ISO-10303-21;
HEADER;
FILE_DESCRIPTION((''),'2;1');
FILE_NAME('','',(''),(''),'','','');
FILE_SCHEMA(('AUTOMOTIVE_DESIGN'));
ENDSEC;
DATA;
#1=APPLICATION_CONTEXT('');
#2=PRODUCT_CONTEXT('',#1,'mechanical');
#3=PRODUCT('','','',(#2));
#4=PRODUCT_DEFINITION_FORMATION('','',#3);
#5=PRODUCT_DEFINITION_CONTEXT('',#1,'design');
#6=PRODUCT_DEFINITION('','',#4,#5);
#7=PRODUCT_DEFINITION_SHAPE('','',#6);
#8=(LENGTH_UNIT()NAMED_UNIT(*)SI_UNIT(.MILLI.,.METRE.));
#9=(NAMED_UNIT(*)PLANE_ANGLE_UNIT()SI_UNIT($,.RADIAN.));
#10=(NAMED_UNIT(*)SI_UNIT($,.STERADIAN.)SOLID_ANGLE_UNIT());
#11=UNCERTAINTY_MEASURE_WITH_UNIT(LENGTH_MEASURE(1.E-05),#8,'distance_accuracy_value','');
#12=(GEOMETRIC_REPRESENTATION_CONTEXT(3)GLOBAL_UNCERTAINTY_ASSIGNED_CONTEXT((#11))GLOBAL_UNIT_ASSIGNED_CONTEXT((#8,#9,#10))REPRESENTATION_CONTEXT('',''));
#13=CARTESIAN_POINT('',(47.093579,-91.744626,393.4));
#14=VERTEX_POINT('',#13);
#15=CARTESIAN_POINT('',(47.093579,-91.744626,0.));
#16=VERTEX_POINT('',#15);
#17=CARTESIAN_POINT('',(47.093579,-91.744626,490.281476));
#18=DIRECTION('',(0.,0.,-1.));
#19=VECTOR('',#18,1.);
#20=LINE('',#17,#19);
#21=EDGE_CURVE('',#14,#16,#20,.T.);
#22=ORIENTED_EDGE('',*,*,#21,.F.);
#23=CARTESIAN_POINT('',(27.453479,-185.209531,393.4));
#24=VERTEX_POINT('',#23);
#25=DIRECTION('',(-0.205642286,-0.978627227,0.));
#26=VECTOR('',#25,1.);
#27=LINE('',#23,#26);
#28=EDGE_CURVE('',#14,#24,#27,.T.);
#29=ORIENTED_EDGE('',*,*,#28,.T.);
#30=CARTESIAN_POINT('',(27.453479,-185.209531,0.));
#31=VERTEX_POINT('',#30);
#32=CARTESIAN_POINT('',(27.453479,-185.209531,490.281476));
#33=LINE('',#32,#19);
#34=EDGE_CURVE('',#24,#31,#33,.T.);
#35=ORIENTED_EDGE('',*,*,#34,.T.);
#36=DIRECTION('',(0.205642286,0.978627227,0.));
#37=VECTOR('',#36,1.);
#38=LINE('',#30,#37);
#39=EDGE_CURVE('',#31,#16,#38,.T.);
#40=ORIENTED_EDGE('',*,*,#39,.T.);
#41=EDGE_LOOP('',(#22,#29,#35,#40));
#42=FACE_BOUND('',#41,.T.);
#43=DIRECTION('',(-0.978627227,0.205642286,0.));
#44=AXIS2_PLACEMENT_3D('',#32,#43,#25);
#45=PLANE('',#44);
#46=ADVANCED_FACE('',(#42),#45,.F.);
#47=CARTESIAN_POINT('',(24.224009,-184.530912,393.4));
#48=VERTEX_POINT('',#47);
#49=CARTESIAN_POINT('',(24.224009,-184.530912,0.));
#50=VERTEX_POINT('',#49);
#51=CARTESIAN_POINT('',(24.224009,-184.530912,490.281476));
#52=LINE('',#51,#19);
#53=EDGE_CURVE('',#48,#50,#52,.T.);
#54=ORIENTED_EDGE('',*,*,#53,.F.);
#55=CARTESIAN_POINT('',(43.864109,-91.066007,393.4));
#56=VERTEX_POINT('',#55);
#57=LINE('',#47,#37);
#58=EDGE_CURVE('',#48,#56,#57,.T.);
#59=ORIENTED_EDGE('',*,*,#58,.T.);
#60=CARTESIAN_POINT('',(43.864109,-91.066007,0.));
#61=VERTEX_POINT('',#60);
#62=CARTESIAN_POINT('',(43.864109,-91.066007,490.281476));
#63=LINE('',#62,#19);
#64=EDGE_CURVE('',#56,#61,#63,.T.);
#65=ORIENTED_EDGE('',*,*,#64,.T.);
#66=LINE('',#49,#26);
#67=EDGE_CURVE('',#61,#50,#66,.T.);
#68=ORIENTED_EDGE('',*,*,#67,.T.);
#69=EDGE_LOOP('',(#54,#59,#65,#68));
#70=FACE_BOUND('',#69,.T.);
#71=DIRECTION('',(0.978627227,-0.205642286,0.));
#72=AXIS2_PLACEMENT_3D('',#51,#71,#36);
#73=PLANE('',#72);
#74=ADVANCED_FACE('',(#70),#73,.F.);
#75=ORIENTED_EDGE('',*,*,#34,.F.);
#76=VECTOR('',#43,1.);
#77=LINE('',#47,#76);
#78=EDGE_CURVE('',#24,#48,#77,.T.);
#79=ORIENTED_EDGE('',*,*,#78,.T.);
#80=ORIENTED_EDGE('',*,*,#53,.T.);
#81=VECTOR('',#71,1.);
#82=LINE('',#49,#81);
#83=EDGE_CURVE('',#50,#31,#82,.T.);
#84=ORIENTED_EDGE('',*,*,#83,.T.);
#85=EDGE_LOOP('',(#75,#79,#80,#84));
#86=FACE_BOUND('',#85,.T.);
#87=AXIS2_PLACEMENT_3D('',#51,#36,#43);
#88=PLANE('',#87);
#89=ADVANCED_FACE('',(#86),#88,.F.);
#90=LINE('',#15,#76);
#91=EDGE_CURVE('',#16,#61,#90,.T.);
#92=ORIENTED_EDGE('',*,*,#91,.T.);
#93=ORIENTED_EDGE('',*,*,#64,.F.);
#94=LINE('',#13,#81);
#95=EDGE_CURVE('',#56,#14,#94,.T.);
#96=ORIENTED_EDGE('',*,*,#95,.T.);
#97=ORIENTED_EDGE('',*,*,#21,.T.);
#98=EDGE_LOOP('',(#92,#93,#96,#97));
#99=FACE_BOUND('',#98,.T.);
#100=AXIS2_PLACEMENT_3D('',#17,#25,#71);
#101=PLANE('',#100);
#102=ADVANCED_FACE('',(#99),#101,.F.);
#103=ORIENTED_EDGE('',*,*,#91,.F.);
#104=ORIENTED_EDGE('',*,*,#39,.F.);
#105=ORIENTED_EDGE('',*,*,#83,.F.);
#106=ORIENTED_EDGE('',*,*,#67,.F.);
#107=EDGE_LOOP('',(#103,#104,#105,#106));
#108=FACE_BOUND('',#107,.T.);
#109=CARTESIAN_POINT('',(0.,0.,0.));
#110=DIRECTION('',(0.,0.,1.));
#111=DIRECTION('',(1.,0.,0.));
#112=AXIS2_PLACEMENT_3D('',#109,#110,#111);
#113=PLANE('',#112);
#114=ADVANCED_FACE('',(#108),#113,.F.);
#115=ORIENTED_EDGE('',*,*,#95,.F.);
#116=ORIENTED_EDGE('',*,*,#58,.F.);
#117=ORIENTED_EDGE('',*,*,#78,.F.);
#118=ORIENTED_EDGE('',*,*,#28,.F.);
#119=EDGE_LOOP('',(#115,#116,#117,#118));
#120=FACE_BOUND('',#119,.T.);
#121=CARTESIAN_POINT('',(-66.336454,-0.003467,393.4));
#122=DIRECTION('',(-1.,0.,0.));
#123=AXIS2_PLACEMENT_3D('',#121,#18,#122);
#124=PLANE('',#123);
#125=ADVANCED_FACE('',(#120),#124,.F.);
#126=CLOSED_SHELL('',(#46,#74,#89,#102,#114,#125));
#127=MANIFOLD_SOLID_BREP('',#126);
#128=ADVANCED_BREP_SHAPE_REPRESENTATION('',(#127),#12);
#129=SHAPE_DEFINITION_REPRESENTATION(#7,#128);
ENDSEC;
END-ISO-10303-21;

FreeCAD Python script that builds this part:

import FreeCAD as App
import Part
import Sketcher

doc = App.newDocument("Part")
body = doc.addObject("PartDesign::Body", "Body")

sketch1 = body.newObject("Sketcher::SketchObject", "Sketch")
sketch1.AttachmentSupport = (doc.getObject("XY_Plane"), [""])
sketch1.MapMode = "FlatFace"
sketch1.addGeometry([
    Part.LineSegment(App.Vector(43.864109, -91.066007, 0), App.Vector(24.224009, -184.530912, 0)),
    Part.LineSegment(App.Vector(24.224009, -184.530912, 0), App.Vector(27.453479, -185.209531, 0)),
    Part.LineSegment(App.Vector(27.453479, -185.209531, 0), App.Vector(47.093579, -91.744626, 0)),
    Part.LineSegment(App.Vector(47.093579, -91.744626, 0), App.Vector(43.864109, -91.066007, 0)),
], False)
sketch1.addConstraint([
    Sketcher.Constraint("Coincident", 0, 2, 1, 1),
    Sketcher.Constraint("Coincident", 1, 2, 2, 1),
    Sketcher.Constraint("Coincident", 2, 2, 3, 1),
    Sketcher.Constraint("Coincident", 3, 2, 0, 1),
    Sketcher.Constraint("Distance", 1, 3.3),
    Sketcher.Constraint("Distance", 3, 3.3),
    Sketcher.Constraint("DistanceX", 1, 2, 2, 2, 19.6401),
    Sketcher.Constraint("DistanceX", 0, 2, 3, 2, 19.6401),
    Sketcher.Constraint("DistanceX", -1, 1, 0, 2, 24.224009),
    Sketcher.Constraint("DistanceY", 0, 2, -1, 1, 184.530912),
    Sketcher.Constraint("DistanceX", -1, 1, 1, 2, 27.453479),
    Sketcher.Constraint("Distance", 0, 95.506136),
])
pad1 = body.newObject("PartDesign::Pad", "Pad")
pad1.Profile = sketch1
pad1.Length = 393.4

doc.recompute()
